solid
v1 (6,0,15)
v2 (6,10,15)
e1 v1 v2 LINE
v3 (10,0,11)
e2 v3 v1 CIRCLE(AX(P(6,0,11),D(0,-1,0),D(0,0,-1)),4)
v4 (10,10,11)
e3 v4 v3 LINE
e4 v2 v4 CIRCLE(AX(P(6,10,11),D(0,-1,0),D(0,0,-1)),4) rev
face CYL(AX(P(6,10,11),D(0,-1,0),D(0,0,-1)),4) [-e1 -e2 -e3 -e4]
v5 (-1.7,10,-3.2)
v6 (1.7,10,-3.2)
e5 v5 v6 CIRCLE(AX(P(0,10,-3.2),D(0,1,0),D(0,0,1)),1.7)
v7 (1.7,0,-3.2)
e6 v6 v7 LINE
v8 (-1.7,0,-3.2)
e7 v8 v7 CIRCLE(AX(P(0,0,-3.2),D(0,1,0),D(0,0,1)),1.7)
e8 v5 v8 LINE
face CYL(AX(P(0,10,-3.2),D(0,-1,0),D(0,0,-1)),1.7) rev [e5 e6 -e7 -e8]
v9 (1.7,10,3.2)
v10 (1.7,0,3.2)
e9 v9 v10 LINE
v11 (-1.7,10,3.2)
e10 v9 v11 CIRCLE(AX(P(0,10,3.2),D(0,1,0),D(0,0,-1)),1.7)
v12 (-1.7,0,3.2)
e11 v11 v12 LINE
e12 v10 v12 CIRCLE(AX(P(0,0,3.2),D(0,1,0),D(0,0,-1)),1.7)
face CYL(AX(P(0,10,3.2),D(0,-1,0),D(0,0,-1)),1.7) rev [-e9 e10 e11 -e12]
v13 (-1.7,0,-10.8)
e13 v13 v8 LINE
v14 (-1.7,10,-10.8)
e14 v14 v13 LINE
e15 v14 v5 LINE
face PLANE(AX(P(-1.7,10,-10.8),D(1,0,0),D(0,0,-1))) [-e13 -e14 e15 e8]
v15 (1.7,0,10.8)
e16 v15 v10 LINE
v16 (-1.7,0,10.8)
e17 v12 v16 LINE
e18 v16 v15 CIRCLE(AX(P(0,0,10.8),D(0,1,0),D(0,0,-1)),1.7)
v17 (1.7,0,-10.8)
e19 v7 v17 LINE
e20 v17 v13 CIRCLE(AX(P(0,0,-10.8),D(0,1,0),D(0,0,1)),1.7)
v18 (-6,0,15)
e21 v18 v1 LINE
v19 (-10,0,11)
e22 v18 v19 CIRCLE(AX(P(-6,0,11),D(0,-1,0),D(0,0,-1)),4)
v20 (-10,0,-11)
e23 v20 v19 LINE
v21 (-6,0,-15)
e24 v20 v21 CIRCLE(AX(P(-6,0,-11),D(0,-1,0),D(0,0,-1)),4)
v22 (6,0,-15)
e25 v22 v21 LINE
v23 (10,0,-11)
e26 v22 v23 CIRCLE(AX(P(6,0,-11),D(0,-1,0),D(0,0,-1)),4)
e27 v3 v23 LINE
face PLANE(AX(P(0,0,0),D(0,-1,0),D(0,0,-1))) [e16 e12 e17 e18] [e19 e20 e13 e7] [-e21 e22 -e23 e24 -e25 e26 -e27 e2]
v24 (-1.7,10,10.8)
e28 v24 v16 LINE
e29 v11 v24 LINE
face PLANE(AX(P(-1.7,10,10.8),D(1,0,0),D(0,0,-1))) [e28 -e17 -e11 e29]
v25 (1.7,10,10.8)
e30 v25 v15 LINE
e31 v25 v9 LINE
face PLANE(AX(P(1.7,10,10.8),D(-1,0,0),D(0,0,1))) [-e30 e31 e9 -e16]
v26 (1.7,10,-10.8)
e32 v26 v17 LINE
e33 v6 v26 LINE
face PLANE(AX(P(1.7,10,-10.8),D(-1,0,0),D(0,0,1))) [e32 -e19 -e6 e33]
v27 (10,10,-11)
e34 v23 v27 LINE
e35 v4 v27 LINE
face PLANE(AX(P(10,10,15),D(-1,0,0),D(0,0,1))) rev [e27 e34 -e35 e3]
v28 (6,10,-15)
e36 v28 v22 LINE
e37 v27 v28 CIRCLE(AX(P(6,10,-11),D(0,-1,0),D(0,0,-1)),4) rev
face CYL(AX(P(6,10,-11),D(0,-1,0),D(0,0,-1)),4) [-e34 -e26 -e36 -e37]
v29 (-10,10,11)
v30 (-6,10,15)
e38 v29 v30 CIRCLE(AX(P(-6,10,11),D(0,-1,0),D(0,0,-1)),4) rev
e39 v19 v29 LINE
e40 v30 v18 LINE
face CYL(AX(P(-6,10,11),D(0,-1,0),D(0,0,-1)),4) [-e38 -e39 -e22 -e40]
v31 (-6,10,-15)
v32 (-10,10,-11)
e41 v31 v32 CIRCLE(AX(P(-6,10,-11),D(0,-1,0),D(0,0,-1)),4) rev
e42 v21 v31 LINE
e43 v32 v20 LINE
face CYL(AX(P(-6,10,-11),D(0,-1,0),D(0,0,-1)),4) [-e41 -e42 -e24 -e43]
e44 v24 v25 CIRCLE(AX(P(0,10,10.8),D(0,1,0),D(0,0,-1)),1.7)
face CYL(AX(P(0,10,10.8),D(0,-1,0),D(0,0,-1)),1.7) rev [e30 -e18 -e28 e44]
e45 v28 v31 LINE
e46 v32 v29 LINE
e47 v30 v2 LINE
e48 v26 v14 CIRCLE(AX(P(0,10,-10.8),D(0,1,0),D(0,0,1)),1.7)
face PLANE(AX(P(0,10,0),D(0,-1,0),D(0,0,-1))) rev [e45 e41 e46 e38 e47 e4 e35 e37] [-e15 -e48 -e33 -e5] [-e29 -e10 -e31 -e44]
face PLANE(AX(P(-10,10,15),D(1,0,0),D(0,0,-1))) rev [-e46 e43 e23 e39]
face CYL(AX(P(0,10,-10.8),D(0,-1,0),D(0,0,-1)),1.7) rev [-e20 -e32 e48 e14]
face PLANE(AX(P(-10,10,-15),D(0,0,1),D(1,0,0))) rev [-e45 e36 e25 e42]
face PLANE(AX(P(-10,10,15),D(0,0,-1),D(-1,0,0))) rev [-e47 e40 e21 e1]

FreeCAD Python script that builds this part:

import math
import FreeCAD as App
import Part
import Sketcher

V = App.Vector
Q = App.Units.Quantity


def edges_at(feature, points):
    """Names of the edges that pass closest to the given points."""
    edges = feature.Shape.Edges
    near = lambda p: min(range(len(edges)), key=lambda i: edges[i].distToShape(Part.Vertex(*p))[0])
    return sorted({f"Edge{near(p) + 1}" for p in points})

doc = App.newDocument("Part")
body = doc.addObject("PartDesign::Body", "Body")

# Sketch on XZ plane
sketch1 = body.newObject("Sketcher::SketchObject", "Sketch")
sketch1.AttachmentSupport = (doc.getObject("XZ_Plane"), [""])
sketch1.MapMode = "FlatFace"
sketch1.addGeometry([
    Part.LineSegment(V(-10, -15, 0), V(-10, 15, 0)),  # 0
    Part.LineSegment(V(-10, 15, 0), V(10, 15, 0)),  # 1
    Part.LineSegment(V(10, 15, 0), V(10, -15, 0)),  # 2
    Part.LineSegment(V(10, -15, 0), V(-10, -15, 0)),  # 3
    Part.LineSegment(V(1.7, 3.2, 0), V(1.7, 10.8, 0)),  # 4
    Part.ArcOfCircle(Part.Circle(V(0, 10.8, 0), V(0, 0, 1), 1.7), math.radians(0), math.radians(180)),  # 5
    Part.LineSegment(V(-1.7, 10.8, 0), V(-1.7, 3.2, 0)),  # 6
    Part.ArcOfCircle(Part.Circle(V(0, 3.2, 0), V(0, 0, 1), 1.7), math.radians(180), math.radians(360)),  # 7
    Part.ArcOfCircle(Part.Circle(V(0, -10.8, 0), V(0, 0, 1), 1.7), math.radians(180), math.radians(360)),  # 8
    Part.LineSegment(V(1.7, -10.8, 0), V(1.7, -3.2, 0)),  # 9
    Part.ArcOfCircle(Part.Circle(V(0, -3.2, 0), V(0, 0, 1), 1.7), math.radians(0), math.radians(180)),  # 10
    Part.LineSegment(V(-1.7, -3.2, 0), V(-1.7, -10.8, 0)),  # 11
], False)
sketch1.addConstraint([
    Sketcher.Constraint("Coincident", 0, 2, 1, 1),
    Sketcher.Constraint("Coincident", 1, 2, 2, 1),
    Sketcher.Constraint("Coincident", 2, 2, 3, 1),
    Sketcher.Constraint("Coincident", 3, 2, 0, 1),
    Sketcher.Constraint("Tangent", 4, 2, 5, 1),
    Sketcher.Constraint("Tangent", 5, 2, 6, 1),
    Sketcher.Constraint("Tangent", 6, 2, 7, 1),
    Sketcher.Constraint("Tangent", 7, 2, 4, 1),
    Sketcher.Constraint("Tangent", 8, 2, 9, 1),
    Sketcher.Constraint("Tangent", 9, 2, 10, 1),
    Sketcher.Constraint("Tangent", 10, 2, 11, 1),
    Sketcher.Constraint("Tangent", 11, 2, 8, 1),
    Sketcher.Constraint("Vertical", 0),
    Sketcher.Constraint("Horizontal", 1),
    Sketcher.Constraint("Vertical", 2),
    Sketcher.Constraint("Horizontal", 3),
    Sketcher.Constraint("Vertical", 4),
    Sketcher.Constraint("Vertical", 6),
    Sketcher.Constraint("Vertical", 9),
    Sketcher.Constraint("Vertical", 11),
    Sketcher.Constraint("Equal", 7, 8),
    Sketcher.Constraint("Symmetric", 5, 3, 8, 3, -1, 1),
    Sketcher.Constraint("Symmetric", 0, 2, 2, 2, -1, 1),
    Sketcher.Constraint("Symmetric", 7, 3, 10, 3, -1),
    Sketcher.Constraint("Radius", 5, Q("1.7 mm")),
    Sketcher.Constraint("DistanceX", 1, 1, 1, 2, Q("20 mm")),
    Sketcher.Constraint("DistanceY", 0, 1, 0, 2, Q("30 mm")),
    Sketcher.Constraint("DistanceY", 4, 1, 4, 2, Q("7.6 mm")),
    Sketcher.Constraint("DistanceY", 8, 3, 7, 3, Q("14 mm")),
])
pad1 = body.newObject("PartDesign::Pad", "Pad")
pad1.Profile = sketch1
pad1.Length = 10
pad1.Reversed = True
doc.recompute()

fillet = body.newObject("PartDesign::Fillet", "Fillet")
fillet.Base = (pad1, edges_at(pad1, [
    (10, 5, 15),
    (-10, 5, 15),
    (-10, 5, -15),
    (10, 5, -15),
]))
fillet.Radius = 4

doc.recompute()
